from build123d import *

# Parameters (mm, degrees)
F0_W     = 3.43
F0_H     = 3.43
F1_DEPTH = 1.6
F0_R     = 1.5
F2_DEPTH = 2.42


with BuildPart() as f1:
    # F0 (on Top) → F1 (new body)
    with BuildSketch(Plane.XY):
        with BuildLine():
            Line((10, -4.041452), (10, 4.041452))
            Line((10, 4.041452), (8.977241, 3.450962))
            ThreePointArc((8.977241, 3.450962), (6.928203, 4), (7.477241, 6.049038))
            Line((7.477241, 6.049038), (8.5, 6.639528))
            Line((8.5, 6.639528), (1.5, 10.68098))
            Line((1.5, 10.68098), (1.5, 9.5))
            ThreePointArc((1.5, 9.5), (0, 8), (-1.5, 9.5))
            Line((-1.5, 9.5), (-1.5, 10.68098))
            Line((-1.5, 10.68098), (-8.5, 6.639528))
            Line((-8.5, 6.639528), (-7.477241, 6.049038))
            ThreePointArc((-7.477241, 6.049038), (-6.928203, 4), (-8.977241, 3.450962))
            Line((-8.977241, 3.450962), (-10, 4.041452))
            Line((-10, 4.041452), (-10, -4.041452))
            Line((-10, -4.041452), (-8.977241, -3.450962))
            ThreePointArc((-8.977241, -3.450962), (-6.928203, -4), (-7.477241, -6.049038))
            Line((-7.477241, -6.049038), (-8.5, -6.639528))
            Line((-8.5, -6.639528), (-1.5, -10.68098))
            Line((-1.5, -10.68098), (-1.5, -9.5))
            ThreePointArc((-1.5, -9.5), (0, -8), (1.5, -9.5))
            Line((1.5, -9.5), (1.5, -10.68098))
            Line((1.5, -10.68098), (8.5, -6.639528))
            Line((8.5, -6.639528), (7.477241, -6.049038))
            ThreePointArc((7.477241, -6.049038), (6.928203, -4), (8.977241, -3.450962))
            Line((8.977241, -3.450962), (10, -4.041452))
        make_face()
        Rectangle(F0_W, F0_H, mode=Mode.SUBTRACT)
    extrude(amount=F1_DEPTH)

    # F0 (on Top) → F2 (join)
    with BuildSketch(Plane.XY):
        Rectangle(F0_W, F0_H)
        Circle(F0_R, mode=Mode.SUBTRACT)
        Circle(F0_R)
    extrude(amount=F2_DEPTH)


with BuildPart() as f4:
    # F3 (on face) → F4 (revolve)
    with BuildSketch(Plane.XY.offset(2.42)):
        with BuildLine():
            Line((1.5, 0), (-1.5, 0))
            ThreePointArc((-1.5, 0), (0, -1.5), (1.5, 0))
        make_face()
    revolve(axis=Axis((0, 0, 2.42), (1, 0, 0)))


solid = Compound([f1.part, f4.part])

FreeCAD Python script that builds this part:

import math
import FreeCAD as App
import Part
import Sketcher
Q = App.Units.Quantity


def add_polygon(sketch, points):
    """Adds a closed chain of lines whose ends are joined by coincident constraints."""
    first, n = sketch.GeometryCount, len(points)
    for a, b in zip(points, points[1:] + points[:1]):
        sketch.addGeometry(Part.LineSegment(App.Vector(*a, 0), App.Vector(*b, 0)), False)
    for i in range(n):
        sketch.addConstraint(Sketcher.Constraint("Coincident", first + i, 2, first + (i + 1) % n, 1))

doc = App.newDocument("Part")
params = doc.addObject("Spreadsheet::Sheet", "Params")
for row, (alias, value) in enumerate([
    ("sketch1_radius", "1.5 mm"),
    ("sketch1_width", "3.43 mm"),
    ("pad1_length", "1.6 mm"),
    ("sketch2_width", "3.43 mm"),
    ("pad2_length", "2.42 mm"),
    ("sketch3_radius", "1.5 mm"),
    ("revolution_angle", "360 deg"),
], start=1):
    params.set(f"A{row}", alias)
    params.set(f"B{row}", "=" + value)
    params.setAlias(f"B{row}", alias)

body = doc.addObject("PartDesign::Body", "Body")

# Sketch on XY plane
sketch1 = doc.addObject("Sketcher::SketchObject", "Sketch")
body.addObject(sketch1)
sketch1.AttachmentSupport = (doc.XY_Plane, [""])
sketch1.MapMode = "FlatFace"
sketch1.addGeometry(Part.LineSegment(App.Vector(10, -4, 0), App.Vector(10, 4, 0)), False)  # 0
sketch1.addGeometry(Part.LineSegment(App.Vector(10, 4, 0), App.Vector(9, 3.5, 0)), False)  # 1
sketch1.addGeometry(Part.ArcOfCircle(Part.Circle(App.Vector(8.2, 4.8, 0), App.Vector(0, 0, 1), 1.5), math.radians(120), math.radians(300)), False)  # 2
sketch1.addGeometry(Part.LineSegment(App.Vector(7.5, 6, 0), App.Vector(8.5, 6.6, 0)), False)  # 3
sketch1.addGeometry(Part.LineSegment(App.Vector(8.5, 6.6, 0), App.Vector(1.5, 10.7, 0)), False)  # 4
sketch1.addGeometry(Part.LineSegment(App.Vector(1.5, 10.7, 0), App.Vector(1.5, 9.5, 0)), False)  # 5
sketch1.addGeometry(Part.ArcOfCircle(Part.Circle(App.Vector(0, 9.5, 0), App.Vector(0, 0, 1), 1.5), math.radians(180), math.radians(360)), False)  # 6
sketch1.addGeometry(Part.LineSegment(App.Vector(-1.5, 9.5, 0), App.Vector(-1.5, 10.7, 0)), False)  # 7
sketch1.addGeometry(Part.LineSegment(App.Vector(-1.5, 10.7, 0), App.Vector(-8.5, 6.6, 0)), False)  # 8
sketch1.addGeometry(Part.LineSegment(App.Vector(-8.5, 6.6, 0), App.Vector(-7.5, 6, 0)), False)  # 9
sketch1.addGeometry(Part.ArcOfCircle(Part.Circle(App.Vector(-8.2, 4.8, 0), App.Vector(0, 0, 1), 1.5), math.radians(-120), math.radians(60)), False)  # 10
sketch1.addGeometry(Part.LineSegment(App.Vector(-9, 3.5, 0), App.Vector(-10, 4, 0)), False)  # 11
sketch1.addGeometry(Part.LineSegment(App.Vector(-10, 4, 0), App.Vector(-10, -4, 0)), False)  # 12
sketch1.addGeometry(Part.LineSegment(App.Vector(-10, -4, 0), App.Vector(-9, -3.5, 0)), False)  # 13
sketch1.addGeometry(Part.ArcOfCircle(Part.Circle(App.Vector(-8.2, -4.8, 0), App.Vector(0, 0, 1), 1.5), math.radians(-60), math.radians(120)), False)  # 14
sketch1.addGeometry(Part.LineSegment(App.Vector(-7.5, -6, 0), App.Vector(-8.5, -6.6, 0)), False)  # 15
sketch1.addGeometry(Part.LineSegment(App.Vector(-8.5, -6.6, 0), App.Vector(-1.5, -10.7, 0)), False)  # 16
sketch1.addGeometry(Part.LineSegment(App.Vector(-1.5, -10.7, 0), App.Vector(-1.5, -9.5, 0)), False)  # 17
sketch1.addGeometry(Part.ArcOfCircle(Part.Circle(App.Vector(0, -9.5, 0), App.Vector(0, 0, 1), 1.5), math.radians(0), math.radians(180)), False)  # 18
sketch1.addGeometry(Part.LineSegment(App.Vector(1.5, -9.5, 0), App.Vector(1.5, -10.7, 0)), False)  # 19
sketch1.addGeometry(Part.LineSegment(App.Vector(1.5, -10.7, 0), App.Vector(8.5, -6.6, 0)), False)  # 20
sketch1.addGeometry(Part.LineSegment(App.Vector(8.5, -6.6, 0), App.Vector(7.5, -6, 0)), False)  # 21
sketch1.addGeometry(Part.ArcOfCircle(Part.Circle(App.Vector(8.2, -4.8, 0), App.Vector(0, 0, 1), 1.5), math.radians(60), math.radians(240)), False)  # 22
sketch1.addGeometry(Part.LineSegment(App.Vector(9, -3.5, 0), App.Vector(10, -4, 0)), False)  # 23
add_polygon(sketch1, [(1.7, -1.7), (-1.7, -1.7), (-1.7, 1.7), (1.7, 1.7)])  # lines 24-27
sketch1.addConstraint(Sketcher.Constraint("Coincident", 0, 2, 1, 1))
sketch1.addConstraint(Sketcher.Constraint("Tangent", 1, 2, 2, 2))
sketch1.addConstraint(Sketcher.Constraint("Tangent", 2, 1, 3, 1))
sketch1.addConstraint(Sketcher.Constraint("Coincident", 3, 2, 4, 1))
sketch1.addConstraint(Sketcher.Constraint("Coincident", 4, 2, 5, 1))
sketch1.addConstraint(Sketcher.Constraint("Tangent", 5, 2, 6, 2))
sketch1.addConstraint(Sketcher.Constraint("Tangent", 6, 1, 7, 1))
sketch1.addConstraint(Sketcher.Constraint("Coincident", 7, 2, 8, 1))
sketch1.addConstraint(Sketcher.Constraint("Coincident", 8, 2, 9, 1))
sketch1.addConstraint(Sketcher.Constraint("Tangent", 9, 2, 10, 2))
sketch1.addConstraint(Sketcher.Constraint("Tangent", 10, 1, 11, 1))
sketch1.addConstraint(Sketcher.Constraint("Coincident", 11, 2, 12, 1))
sketch1.addConstraint(Sketcher.Constraint("Coincident", 12, 2, 13, 1))
sketch1.addConstraint(Sketcher.Constraint("Tangent", 13, 2, 14, 2))
sketch1.addConstraint(Sketcher.Constraint("Tangent", 14, 1, 15, 1))
sketch1.addConstraint(Sketcher.Constraint("Coincident", 15, 2, 16, 1))
sketch1.addConstraint(Sketcher.Constraint("Coincident", 16, 2, 17, 1))
sketch1.addConstraint(Sketcher.Constraint("Tangent", 17, 2, 18, 2))
sketch1.addConstraint(Sketcher.Constraint("Tangent", 18, 1, 19, 1))
sketch1.addConstraint(Sketcher.Constraint("Coincident", 19, 2, 20, 1))
sketch1.addConstraint(Sketcher.Constraint("Coincident", 20, 2, 21, 1))
sketch1.addConstraint(Sketcher.Constraint("Tangent", 21, 2, 22, 2))
sketch1.addConstraint(Sketcher.Constraint("Tangent", 22, 1, 23, 1))
sketch1.addConstraint(Sketcher.Constraint("Coincident", 23, 2, 0, 1))
sketch1.addConstraint(Sketcher.Constraint("Vertical", 0))
sketch1.addConstraint(Sketcher.Constraint("Vertical", 5))
sketch1.addConstraint(Sketcher.Constraint("Vertical", 7))
sketch1.addConstraint(Sketcher.Constraint("Vertical", 12))
sketch1.addConstraint(Sketcher.Constraint("Vertical", 17))
sketch1.addConstraint(Sketcher.Constraint("Vertical", 19))
sketch1.addConstraint(Sketcher.Constraint("Horizontal", 24))
sketch1.addConstraint(Sketcher.Constraint("Vertical", 25))
sketch1.addConstraint(Sketcher.Constraint("Horizontal", 26))
sketch1.addConstraint(Sketcher.Constraint("Vertical", 27))
sketch1.addConstraint(Sketcher.Constraint("Equal", 2, 6))
sketch1.addConstraint(Sketcher.Constraint("Equal", 6, 10))
sketch1.addConstraint(Sketcher.Constraint("Equal", 10, 14))
sketch1.addConstraint(Sketcher.Constraint("Equal", 14, 18))
sketch1.addConstraint(Sketcher.Constraint("Equal", 18, 22))
sketch1.addConstraint(Sketcher.Constraint("Symmetric", 2, 3, 14, 3, -1, 1))
sketch1.addConstraint(Sketcher.Constraint("Symmetric", 6, 3, 18, 3, -1, 1))
sketch1.addConstraint(Sketcher.Constraint("Symmetric", 10, 3, 22, 3, -1, 1))
sketch1.addConstraint(Sketcher.Constraint("Symmetric", 0, 2, 12, 2, -1, 1))
sketch1.addConstraint(Sketcher.Constraint("Symmetric", 3, 2, 15, 2, -1, 1))
sketch1.addConstraint(Sketcher.Constraint("Symmetric", 8, 2, 20, 2, -1, 1))
sketch1.addConstraint(Sketcher.Constraint("Symmetric", 24, 2, 26, 2, -1, 1))
sketch1.addConstraint(Sketcher.Constraint("Symmetric", 2, 3, 10, 3, -2))
sketch1.addConstraint(Sketcher.Constraint("Symmetric", 4, 2, 7, 2, -2))
sketch1.addConstraint(Sketcher.Constraint("Symmetric", 3, 2, 8, 2, -2))
sketch1.addConstraint(Sketcher.Constraint("Parallel", 1, 3))
sketch1.addConstraint(Sketcher.Constraint("Parallel", 3, 8))
sketch1.addConstraint(Sketcher.Constraint("Parallel", 9, 11))
sketch1.addConstraint(Sketcher.Constraint("Parallel", 11, 16))
sketch1.addConstraint(Sketcher.Constraint("Parallel", 15, 20))
sketch1.addConstraint(Sketcher.Constraint("Parallel", 21, 23))
sketch1.addConstraint(Sketcher.Constraint("Equal", 26, 25))
sketch1.addConstraint(Sketcher.Constraint("Equal", 1, 3))
sketch1.addConstraint(Sketcher.Constraint("Radius", 2, Q("1.5 mm")))
sketch1.addConstraint(Sketcher.Constraint("Angle", 1, Q("-150.000008 deg")))
sketch1.addConstraint(Sketcher.Constraint("DistanceX", -1, 1, 0, 2, Q("10 mm")))
sketch1.addConstraint(Sketcher.Constraint("DistanceY", 18, 3, 6, 3, Q("19 mm")))
sketch1.addConstraint(Sketcher.Constraint("DistanceX", 24, 2, 24, 1, Q("3.43 mm")))
sketch1.addConstraint(Sketcher.Constraint("DistanceY", 14, 3, 10, 3, Q("9.5 mm")))
sketch1.addConstraint(Sketcher.Constraint("DistanceY", 5, 2, 5, 1, Q("1.18098 mm")))
sketch1.setExpression("Constraints[61]", "Params.sketch1_radius")
sketch1.setExpression("Constraints[65]", "Params.sketch1_width")
pad1 = doc.addObject("PartDesign::Pad", "Pad")
body.addObject(pad1)
pad1.Profile = sketch1
pad1.setExpression("Length", "Params.pad1_length")

# Sketch on XY plane
sketch2 = doc.addObject("Sketcher::SketchObject", "Sketch001")
body.addObject(sketch2)
sketch2.AttachmentSupport = (doc.XY_Plane, [""])
sketch2.MapMode = "FlatFace"
add_polygon(sketch2, [(-1.7, 1.7), (-1.7, -1.7), (1.7, -1.7), (1.7, 1.7)])  # lines 0-3
sketch2.addConstraint(Sketcher.Constraint("Vertical", 0))
sketch2.addConstraint(Sketcher.Constraint("Horizontal", 1))
sketch2.addConstraint(Sketcher.Constraint("Vertical", 2))
sketch2.addConstraint(Sketcher.Constraint("Horizontal", 3))
sketch2.addConstraint(Sketcher.Constraint("Symmetric", 0, 2, 2, 2, -1, 1))
sketch2.addConstraint(Sketcher.Constraint("Equal", 3, 0))
sketch2.addConstraint(Sketcher.Constraint("DistanceX", 1, 1, 1, 2, Q("3.43 mm")))
sketch2.setExpression("Constraints[10]", "Params.sketch2_width")
pad2 = doc.addObject("PartDesign::Pad", "Pad001")
body.addObject(pad2)
pad2.Profile = sketch2
pad2.setExpression("Length", "Params.pad2_length")
body2 = doc.addObject("PartDesign::Body", "Body001")

# Sketch on XY plane
sketch3 = doc.addObject("Sketcher::SketchObject", "Sketch002")
body2.addObject(sketch3)
sketch3.AttachmentSupport = (doc.getObject("XY_Plane001"), [""])
sketch3.MapMode = "FlatFace"
sketch3.AttachmentOffset = App.Placement(App.Vector(0, 0, 2.42), App.Rotation())
sketch3.addGeometry(Part.LineSegment(App.Vector(1.5, 0, 0), App.Vector(-1.5, 0, 0)), False)
sketch3.addGeometry(Part.ArcOfCircle(Part.Circle(App.Vector(0, 0, 0), App.Vector(0, 0, 1), 1.5), math.radians(180), math.radians(360)), False)
sketch3.addConstraint(Sketcher.Constraint("Coincident", 0, 1, 1, 2))
sketch3.addConstraint(Sketcher.Constraint("Coincident", 1, 1, 0, 2))
sketch3.addConstraint(Sketcher.Constraint("Horizontal", 0))
sketch3.addConstraint(Sketcher.Constraint("Coincident", 1, 3, -1, 1))
sketch3.addConstraint(Sketcher.Constraint("PointOnObject", 0, 1, -1))
sketch3.addConstraint(Sketcher.Constraint("Radius", 1, Q("1.5 mm")))
sketch3.setExpression("Constraints[5]", "Params.sketch3_radius")
revolution = doc.addObject("PartDesign::Revolution", "Revolution")
body2.addObject(revolution)
revolution.Profile = sketch3
revolution.ReferenceAxis = (sketch3, ["H_Axis"])
revolution.setExpression("Angle", "Params.revolution_angle")

doc.recompute()
